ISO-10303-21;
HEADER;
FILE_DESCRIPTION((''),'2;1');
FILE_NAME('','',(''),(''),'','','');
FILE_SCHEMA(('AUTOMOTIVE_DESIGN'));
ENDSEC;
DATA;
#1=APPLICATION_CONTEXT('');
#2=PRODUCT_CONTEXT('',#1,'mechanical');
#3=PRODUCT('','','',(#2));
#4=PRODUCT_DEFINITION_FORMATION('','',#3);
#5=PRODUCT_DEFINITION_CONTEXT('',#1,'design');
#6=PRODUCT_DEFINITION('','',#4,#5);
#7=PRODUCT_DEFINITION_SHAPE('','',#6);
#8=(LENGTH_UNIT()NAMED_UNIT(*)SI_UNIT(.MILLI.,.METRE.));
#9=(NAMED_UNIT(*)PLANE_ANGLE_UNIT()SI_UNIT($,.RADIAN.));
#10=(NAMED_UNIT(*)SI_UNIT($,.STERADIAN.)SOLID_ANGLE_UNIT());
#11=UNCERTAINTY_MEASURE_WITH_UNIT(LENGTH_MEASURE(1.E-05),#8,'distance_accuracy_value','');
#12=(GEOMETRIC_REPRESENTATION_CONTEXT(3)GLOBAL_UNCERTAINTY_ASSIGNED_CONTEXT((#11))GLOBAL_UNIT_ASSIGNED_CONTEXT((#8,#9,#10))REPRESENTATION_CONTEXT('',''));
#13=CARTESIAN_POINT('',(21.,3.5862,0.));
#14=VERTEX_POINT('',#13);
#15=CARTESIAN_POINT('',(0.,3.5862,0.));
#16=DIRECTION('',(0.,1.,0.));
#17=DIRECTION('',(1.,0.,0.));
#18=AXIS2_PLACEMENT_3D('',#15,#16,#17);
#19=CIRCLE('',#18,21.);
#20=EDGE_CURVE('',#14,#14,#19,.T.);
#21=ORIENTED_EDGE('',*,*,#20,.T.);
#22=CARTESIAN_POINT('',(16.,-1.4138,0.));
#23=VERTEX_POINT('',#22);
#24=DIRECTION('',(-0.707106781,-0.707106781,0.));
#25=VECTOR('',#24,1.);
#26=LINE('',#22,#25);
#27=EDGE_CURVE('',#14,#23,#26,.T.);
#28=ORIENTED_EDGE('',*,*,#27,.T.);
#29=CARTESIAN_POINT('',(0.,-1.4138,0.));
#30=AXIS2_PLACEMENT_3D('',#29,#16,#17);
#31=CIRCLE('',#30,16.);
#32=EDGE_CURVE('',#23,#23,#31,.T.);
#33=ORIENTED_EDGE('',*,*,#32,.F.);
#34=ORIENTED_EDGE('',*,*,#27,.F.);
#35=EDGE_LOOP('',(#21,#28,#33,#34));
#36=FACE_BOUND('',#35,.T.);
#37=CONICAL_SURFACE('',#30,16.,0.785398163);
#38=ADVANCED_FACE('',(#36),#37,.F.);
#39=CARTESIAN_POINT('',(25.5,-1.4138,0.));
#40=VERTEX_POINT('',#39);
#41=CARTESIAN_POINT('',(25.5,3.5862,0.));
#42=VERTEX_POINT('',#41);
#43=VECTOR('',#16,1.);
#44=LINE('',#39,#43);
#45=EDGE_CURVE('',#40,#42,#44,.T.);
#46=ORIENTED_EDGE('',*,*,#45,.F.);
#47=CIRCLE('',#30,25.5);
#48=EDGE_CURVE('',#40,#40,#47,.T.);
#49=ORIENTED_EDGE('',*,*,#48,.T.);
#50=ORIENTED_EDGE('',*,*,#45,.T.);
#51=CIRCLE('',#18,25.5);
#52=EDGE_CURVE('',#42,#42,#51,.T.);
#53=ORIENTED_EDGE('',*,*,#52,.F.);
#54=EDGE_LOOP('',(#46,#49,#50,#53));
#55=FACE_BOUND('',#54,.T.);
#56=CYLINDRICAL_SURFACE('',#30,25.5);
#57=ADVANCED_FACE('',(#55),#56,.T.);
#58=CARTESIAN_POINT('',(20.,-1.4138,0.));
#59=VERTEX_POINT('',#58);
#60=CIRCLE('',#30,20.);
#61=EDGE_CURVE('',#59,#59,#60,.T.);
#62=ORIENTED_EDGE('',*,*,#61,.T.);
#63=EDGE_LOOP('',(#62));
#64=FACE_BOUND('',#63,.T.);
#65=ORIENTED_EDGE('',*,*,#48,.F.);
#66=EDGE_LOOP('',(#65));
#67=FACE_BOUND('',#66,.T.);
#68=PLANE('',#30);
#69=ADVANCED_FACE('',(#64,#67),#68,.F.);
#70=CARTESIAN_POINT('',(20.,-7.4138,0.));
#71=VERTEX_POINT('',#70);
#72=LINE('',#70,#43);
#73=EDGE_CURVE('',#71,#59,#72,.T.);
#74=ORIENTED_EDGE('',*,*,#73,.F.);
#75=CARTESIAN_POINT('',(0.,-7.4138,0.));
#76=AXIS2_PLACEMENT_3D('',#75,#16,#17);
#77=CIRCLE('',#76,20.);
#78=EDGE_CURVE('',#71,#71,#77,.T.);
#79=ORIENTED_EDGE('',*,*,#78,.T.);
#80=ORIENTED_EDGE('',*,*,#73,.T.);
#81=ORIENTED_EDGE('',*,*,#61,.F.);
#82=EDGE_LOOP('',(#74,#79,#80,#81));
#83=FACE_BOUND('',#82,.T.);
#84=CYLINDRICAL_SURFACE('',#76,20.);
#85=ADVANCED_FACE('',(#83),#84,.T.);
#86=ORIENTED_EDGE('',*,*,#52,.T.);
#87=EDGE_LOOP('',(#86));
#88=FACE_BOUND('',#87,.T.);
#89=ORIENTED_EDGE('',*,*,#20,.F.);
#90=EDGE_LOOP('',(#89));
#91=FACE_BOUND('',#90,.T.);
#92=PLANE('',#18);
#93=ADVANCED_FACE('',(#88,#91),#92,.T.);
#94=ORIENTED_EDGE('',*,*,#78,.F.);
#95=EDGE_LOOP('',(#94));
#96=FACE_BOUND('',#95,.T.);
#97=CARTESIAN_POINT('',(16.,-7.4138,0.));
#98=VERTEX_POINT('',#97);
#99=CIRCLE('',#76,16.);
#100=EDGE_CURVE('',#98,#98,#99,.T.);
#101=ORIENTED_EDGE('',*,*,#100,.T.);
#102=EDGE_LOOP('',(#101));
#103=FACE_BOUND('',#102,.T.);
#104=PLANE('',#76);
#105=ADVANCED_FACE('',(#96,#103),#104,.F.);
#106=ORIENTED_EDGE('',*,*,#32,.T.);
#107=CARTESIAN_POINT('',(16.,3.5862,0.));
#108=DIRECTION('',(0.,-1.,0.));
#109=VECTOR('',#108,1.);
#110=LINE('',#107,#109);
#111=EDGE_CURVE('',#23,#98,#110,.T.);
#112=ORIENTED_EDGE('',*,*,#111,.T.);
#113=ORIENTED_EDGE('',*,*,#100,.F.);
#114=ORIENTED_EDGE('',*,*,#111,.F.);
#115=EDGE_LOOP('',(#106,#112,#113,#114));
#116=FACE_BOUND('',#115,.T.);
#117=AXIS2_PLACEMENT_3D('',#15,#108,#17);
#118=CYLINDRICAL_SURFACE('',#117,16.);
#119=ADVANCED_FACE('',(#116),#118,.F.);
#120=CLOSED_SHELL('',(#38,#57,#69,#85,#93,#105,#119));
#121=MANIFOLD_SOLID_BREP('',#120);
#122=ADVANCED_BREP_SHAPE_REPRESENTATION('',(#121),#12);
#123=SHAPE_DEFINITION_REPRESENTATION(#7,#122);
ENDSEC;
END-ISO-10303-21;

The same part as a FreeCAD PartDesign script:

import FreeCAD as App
import Part
import Sketcher

V = App.Vector


def edges_at(feature, points):
    """Names of the edges that pass closest to the given points."""
    edges = feature.Shape.Edges
    near = lambda p: min(range(len(edges)), key=lambda i: edges[i].distToShape(Part.Vertex(*p))[0])
    return sorted({f"Edge{near(p) + 1}" for p in points})


def add_polygon(sketch, points):
    """Adds a closed chain of lines whose ends are joined by coincident constraints."""
    first, n = sketch.GeometryCount, len(points)
    for a, b in zip(points, points[1:] + points[:1]):
        sketch.addGeometry(Part.LineSegment(App.Vector(*a, 0), App.Vector(*b, 0)), False)
    for i in range(n):
        sketch.addConstraint(Sketcher.Constraint("Coincident", first + i, 2, first + (i + 1) % n, 1))

doc = App.newDocument("Part")
body = doc.addObject("PartDesign::Body", "Body")

# Sketch on XY plane
sketch1 = doc.addObject("Sketcher::SketchObject", "Sketch")
body.addObject(sketch1)
sketch1.AttachmentSupport = (doc.XY_Plane, [""])
sketch1.MapMode = "FlatFace"
add_polygon(sketch1, [(25.5, 3.6), (16, 3.6), (16, -7.4), (20, -7.4), (20, -1.4), (25.5, -1.4)])  # lines 0-5
sketch1.addConstraint(Sketcher.Constraint("Horizontal", 0))
sketch1.addConstraint(Sketcher.Constraint("Vertical", 1))
sketch1.addConstraint(Sketcher.Constraint("Horizontal", 2))
sketch1.addConstraint(Sketcher.Constraint("Vertical", 3))
sketch1.addConstraint(Sketcher.Constraint("Horizontal", 4))
sketch1.addConstraint(Sketcher.Constraint("Vertical", 5))
sketch1.addConstraint(Sketcher.Constraint("DistanceY", 1, 2, 1, 1, 11.0))
sketch1.addConstraint(Sketcher.Constraint("DistanceY", 5, 1, 5, 2, 5.0))
sketch1.addConstraint(Sketcher.Constraint("DistanceX", 2, 1, 2, 2, 4.0))
sketch1.addConstraint(Sketcher.Constraint("DistanceX", 0, 2, 0, 1, 9.5))
sketch1.addConstraint(Sketcher.Constraint("DistanceX", -1, 1, 0, 2, 16.0))
sketch1.addConstraint(Sketcher.Constraint("DistanceY", -1, 1, 0, 2, 3.5862))
revolution = doc.addObject("PartDesign::Revolution", "Revolution")
body.addObject(revolution)
revolution.Profile = sketch1
revolution.ReferenceAxis = (sketch1, ["V_Axis"])
revolution.Angle = 360
doc.recompute()

chamfer = doc.addObject("PartDesign::Chamfer", "Chamfer")
body.addObject(chamfer)
chamfer.Base = (revolution, edges_at(revolution, [(-16, 3.586, 0)]))
chamfer.Size = 5

doc.recompute()
